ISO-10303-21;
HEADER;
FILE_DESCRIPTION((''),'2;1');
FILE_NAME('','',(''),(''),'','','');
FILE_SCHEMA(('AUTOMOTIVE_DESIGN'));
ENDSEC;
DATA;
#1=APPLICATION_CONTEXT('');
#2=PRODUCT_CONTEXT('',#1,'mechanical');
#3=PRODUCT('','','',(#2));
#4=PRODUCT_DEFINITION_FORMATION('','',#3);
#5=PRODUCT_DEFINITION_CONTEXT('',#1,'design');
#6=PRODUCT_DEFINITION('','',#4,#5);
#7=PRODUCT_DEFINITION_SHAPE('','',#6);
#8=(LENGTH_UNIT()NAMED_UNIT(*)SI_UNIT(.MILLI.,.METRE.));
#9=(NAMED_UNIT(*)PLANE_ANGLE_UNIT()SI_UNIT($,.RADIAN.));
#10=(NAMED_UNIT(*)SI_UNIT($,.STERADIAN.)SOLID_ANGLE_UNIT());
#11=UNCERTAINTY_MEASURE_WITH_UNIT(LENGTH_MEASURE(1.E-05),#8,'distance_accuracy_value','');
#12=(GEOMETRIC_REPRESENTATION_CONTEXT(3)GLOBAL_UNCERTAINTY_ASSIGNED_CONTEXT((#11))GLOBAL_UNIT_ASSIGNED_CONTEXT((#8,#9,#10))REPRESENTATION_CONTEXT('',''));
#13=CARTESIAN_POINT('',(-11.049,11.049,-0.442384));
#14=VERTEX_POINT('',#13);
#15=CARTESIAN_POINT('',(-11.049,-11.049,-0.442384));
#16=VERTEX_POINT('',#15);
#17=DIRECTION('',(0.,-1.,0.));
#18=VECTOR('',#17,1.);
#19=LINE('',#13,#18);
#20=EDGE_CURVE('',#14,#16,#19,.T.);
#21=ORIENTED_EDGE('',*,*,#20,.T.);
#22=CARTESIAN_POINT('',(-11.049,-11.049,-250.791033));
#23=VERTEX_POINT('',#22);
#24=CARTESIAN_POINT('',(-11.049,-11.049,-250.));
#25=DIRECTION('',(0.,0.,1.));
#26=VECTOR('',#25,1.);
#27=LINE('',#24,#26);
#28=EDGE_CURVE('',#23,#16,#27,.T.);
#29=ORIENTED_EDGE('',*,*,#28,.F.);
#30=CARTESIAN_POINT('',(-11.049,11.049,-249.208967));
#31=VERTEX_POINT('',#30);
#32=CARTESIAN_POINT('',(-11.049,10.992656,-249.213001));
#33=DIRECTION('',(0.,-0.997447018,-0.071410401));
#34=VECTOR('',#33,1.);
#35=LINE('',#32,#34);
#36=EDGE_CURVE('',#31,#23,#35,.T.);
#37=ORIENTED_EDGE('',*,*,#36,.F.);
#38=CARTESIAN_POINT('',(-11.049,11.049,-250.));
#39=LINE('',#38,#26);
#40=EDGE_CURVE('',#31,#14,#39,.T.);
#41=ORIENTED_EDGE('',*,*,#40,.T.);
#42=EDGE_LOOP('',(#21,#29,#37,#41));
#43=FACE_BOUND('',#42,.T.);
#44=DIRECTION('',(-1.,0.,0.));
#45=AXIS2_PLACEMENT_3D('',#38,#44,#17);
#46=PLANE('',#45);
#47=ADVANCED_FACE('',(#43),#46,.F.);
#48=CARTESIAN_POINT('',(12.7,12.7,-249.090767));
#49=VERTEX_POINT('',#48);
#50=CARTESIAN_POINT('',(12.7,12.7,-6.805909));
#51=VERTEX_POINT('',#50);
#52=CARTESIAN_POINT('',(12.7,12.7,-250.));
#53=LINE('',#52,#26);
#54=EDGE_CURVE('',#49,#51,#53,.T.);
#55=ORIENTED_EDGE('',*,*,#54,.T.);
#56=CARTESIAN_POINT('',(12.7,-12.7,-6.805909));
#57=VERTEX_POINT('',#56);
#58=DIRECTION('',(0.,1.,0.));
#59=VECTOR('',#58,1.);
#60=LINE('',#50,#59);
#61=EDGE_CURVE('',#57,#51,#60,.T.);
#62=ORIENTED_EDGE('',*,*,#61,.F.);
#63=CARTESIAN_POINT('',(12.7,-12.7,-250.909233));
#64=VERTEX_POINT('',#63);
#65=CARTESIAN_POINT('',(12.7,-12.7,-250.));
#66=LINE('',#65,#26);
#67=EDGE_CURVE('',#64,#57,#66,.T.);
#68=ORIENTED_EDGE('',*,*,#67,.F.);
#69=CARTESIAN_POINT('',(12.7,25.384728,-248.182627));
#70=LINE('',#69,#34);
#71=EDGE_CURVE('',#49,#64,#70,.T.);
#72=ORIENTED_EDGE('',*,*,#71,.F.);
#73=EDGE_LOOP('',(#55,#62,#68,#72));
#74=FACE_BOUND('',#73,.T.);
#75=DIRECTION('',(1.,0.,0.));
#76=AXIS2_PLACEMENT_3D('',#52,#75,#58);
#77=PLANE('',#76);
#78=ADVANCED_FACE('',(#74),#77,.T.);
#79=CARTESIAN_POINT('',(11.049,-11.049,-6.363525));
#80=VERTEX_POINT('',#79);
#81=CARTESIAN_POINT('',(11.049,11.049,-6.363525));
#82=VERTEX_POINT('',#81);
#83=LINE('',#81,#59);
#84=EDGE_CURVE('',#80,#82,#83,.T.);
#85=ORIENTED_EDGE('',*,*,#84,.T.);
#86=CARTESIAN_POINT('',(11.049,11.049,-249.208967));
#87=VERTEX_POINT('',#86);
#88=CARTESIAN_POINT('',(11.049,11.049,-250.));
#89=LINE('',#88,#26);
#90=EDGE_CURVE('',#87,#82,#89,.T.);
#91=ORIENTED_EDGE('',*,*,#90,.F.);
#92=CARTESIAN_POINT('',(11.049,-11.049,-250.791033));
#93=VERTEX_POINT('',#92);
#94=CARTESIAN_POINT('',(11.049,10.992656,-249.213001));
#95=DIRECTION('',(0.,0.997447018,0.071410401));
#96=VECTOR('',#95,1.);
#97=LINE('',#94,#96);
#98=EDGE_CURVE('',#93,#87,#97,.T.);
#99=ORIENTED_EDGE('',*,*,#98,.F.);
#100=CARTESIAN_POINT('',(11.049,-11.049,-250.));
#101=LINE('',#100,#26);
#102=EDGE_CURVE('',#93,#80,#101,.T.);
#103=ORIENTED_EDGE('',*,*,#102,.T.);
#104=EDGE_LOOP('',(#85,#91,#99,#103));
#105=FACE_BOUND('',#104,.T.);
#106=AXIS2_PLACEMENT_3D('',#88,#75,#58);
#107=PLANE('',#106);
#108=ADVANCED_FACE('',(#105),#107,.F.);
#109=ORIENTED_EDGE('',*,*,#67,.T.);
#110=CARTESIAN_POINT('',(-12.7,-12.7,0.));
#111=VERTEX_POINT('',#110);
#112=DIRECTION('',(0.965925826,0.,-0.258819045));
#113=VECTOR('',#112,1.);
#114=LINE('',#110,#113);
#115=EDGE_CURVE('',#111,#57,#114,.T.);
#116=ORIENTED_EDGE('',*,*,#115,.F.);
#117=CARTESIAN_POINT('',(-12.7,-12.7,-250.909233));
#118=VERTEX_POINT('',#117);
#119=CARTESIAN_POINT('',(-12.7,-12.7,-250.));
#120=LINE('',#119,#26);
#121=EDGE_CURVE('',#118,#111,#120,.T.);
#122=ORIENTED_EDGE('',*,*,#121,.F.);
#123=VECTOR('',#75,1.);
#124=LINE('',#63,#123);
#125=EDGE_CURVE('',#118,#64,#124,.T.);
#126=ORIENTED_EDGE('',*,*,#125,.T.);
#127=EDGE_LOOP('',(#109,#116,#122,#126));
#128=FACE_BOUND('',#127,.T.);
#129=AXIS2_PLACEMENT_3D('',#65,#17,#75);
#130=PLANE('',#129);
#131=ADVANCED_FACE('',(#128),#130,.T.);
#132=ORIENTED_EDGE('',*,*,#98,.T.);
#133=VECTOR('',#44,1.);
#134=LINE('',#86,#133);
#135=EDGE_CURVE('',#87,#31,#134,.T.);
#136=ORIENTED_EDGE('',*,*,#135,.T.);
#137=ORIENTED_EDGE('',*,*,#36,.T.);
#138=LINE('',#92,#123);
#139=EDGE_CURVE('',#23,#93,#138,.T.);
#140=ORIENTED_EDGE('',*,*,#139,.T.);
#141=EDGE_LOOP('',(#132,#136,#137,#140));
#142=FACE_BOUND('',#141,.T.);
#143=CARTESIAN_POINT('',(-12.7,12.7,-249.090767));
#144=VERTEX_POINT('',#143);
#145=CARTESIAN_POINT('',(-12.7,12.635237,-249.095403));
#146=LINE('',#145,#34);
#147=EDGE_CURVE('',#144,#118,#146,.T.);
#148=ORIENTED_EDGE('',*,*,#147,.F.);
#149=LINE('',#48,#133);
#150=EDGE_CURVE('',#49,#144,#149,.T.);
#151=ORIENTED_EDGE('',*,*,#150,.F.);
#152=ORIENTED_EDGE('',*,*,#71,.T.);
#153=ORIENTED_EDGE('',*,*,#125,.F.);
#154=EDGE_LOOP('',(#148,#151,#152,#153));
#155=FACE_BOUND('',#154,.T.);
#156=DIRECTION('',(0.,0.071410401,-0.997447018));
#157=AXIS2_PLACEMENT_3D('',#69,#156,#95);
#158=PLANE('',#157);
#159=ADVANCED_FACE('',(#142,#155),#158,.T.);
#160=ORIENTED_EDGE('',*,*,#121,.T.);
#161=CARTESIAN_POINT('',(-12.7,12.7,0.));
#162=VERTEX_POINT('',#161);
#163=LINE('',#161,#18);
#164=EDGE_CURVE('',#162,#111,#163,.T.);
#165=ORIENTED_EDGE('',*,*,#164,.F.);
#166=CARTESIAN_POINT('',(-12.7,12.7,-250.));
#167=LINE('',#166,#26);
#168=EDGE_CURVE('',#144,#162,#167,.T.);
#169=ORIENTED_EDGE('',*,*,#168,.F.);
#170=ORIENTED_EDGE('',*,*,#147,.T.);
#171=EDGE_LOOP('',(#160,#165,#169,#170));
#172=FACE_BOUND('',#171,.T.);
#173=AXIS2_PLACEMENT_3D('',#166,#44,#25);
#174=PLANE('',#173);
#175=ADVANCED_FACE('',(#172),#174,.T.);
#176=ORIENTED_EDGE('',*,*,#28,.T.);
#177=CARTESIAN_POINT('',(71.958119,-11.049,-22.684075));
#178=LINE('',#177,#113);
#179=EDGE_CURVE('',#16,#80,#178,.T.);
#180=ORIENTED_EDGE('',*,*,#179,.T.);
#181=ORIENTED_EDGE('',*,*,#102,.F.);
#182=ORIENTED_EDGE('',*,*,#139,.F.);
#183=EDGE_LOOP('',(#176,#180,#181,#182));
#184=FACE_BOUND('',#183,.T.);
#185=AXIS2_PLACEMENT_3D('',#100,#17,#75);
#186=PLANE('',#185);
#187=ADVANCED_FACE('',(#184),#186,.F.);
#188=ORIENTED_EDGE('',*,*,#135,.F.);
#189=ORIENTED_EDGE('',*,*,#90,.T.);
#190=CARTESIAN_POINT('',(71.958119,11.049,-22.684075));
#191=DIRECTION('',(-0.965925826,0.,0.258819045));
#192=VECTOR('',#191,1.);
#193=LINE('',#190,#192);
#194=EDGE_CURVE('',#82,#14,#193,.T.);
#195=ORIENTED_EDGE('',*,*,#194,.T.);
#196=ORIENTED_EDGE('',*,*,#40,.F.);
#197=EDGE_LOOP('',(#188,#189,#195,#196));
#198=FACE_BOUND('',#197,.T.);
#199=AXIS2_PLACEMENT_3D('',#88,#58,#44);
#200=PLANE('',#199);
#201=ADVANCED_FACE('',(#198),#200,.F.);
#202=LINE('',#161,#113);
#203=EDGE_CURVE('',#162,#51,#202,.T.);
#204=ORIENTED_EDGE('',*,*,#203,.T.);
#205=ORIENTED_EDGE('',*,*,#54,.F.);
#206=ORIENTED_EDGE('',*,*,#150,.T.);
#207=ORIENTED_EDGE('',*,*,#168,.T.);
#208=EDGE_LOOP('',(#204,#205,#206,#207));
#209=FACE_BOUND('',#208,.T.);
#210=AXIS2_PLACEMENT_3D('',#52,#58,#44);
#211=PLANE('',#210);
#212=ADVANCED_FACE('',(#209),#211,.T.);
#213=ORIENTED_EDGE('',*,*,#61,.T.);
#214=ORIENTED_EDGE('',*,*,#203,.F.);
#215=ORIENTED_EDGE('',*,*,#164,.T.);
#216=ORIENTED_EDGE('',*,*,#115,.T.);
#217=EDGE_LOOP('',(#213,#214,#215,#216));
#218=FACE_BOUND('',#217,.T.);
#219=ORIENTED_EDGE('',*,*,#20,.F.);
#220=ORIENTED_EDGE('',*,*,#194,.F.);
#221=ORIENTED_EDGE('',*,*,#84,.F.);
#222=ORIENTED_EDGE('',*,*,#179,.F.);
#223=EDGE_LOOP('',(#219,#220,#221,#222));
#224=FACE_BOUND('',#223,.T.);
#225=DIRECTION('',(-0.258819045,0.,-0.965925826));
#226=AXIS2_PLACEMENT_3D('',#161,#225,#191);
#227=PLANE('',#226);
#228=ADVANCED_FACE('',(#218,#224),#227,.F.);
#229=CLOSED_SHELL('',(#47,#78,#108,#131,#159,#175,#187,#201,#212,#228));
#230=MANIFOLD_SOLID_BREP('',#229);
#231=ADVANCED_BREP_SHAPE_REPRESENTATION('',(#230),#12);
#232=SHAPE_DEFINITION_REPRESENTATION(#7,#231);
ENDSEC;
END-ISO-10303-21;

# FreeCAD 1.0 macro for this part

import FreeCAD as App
import Part
import Sketcher
Q = App.Units.Quantity

doc = App.newDocument("Part")
params = doc.addObject("Spreadsheet::Sheet", "Params")
for row, (alias, value) in enumerate([
    ("sketch1_width", "25.4 mm"),
    ("pad1_length", "250 mm"),
    ("sketch2_width", "25.4 mm"),
    ("pad2_length", "25.4 mm"),
], start=1):
    params.set(f"A{row}", alias)
    params.set(f"B{row}", "=" + value)
    params.setAlias(f"B{row}", alias)

body = doc.addObject("PartDesign::Body", "Body")

# Sketch on XY plane
sketch1 = doc.addObject("Sketcher::SketchObject", "Sketch")
body.addObject(sketch1)
sketch1.AttachmentSupport = (doc.XY_Plane, [""])
sketch1.MapMode = "FlatFace"
sketch1.addGeometry([
    Part.LineSegment(App.Vector(-13, 13, 0), App.Vector(-13, -13, 0)),  # 0
    Part.LineSegment(App.Vector(-13, -13, 0), App.Vector(13, -13, 0)),  # 1
    Part.LineSegment(App.Vector(13, -13, 0), App.Vector(13, 13, 0)),  # 2
    Part.LineSegment(App.Vector(13, 13, 0), App.Vector(-13, 13, 0)),  # 3
    Part.LineSegment(App.Vector(11, -11, 0), App.Vector(-11, -11, 0)),  # 4
    Part.LineSegment(App.Vector(-11, -11, 0), App.Vector(-11, 11, 0)),  # 5
    Part.LineSegment(App.Vector(-11, 11, 0), App.Vector(11, 11, 0)),  # 6
    Part.LineSegment(App.Vector(11, 11, 0), App.Vector(11, -11, 0)),  # 7
], False)
sketch1.addConstraint([
    Sketcher.Constraint("Coincident", 0, 2, 1, 1),
    Sketcher.Constraint("Coincident", 1, 2, 2, 1),
    Sketcher.Constraint("Coincident", 2, 2, 3, 1),
    Sketcher.Constraint("Coincident", 3, 2, 0, 1),
    Sketcher.Constraint("Coincident", 4, 2, 5, 1),
    Sketcher.Constraint("Coincident", 5, 2, 6, 1),
    Sketcher.Constraint("Coincident", 6, 2, 7, 1),
    Sketcher.Constraint("Coincident", 7, 2, 4, 1),
    Sketcher.Constraint("Vertical", 0),
    Sketcher.Constraint("Horizontal", 1),
    Sketcher.Constraint("Vertical", 2),
    Sketcher.Constraint("Horizontal", 3),
    Sketcher.Constraint("Horizontal", 4),
    Sketcher.Constraint("Vertical", 5),
    Sketcher.Constraint("Horizontal", 6),
    Sketcher.Constraint("Vertical", 7),
    Sketcher.Constraint("Symmetric", 0, 2, 2, 2, -1, 1),
    Sketcher.Constraint("Symmetric", 4, 2, 6, 2, -1, 1),
    Sketcher.Constraint("Equal", 3, 0),
    Sketcher.Constraint("Equal", 6, 5),
    Sketcher.Constraint("DistanceX", 1, 1, 1, 2, 25.4),
    Sketcher.Constraint("DistanceX", 4, 2, 4, 1, 22.098),
])
sketch1.setExpression("Constraints[20]", "Params.sketch1_width")
pad1 = doc.addObject("PartDesign::Pad", "Pad")
body.addObject(pad1)
pad1.Profile = sketch1
pad1.setExpression("Length", "Params.pad1_length")
pad1.Reversed = True

# Sketch on XY plane
sketch2 = doc.addObject("Sketcher::SketchObject", "Sketch001")
body.addObject(sketch2)
sketch2.AttachmentSupport = (doc.XY_Plane, [""])
sketch2.MapMode = "FlatFace"
sketch2.AttachmentOffset = App.Placement(App.Vector(0, 0, -250), App.Rotation())
sketch2.addGeometry([
    Part.LineSegment(App.Vector(13, 13, 0), App.Vector(13, -13, 0)),  # 0
    Part.LineSegment(App.Vector(13, -13, 0), App.Vector(-13, -13, 0)),  # 1
    Part.LineSegment(App.Vector(-13, -13, 0), App.Vector(-13, 13, 0)),  # 2
    Part.LineSegment(App.Vector(-13, 13, 0), App.Vector(13, 13, 0)),  # 3
    Part.LineSegment(App.Vector(-11, -11, 0), App.Vector(11, -11, 0)),  # 4
    Part.LineSegment(App.Vector(11, -11, 0), App.Vector(11, 11, 0)),  # 5
    Part.LineSegment(App.Vector(11, 11, 0), App.Vector(-11, 11, 0)),  # 6
    Part.LineSegment(App.Vector(-11, 11, 0), App.Vector(-11, -11, 0)),  # 7
], False)
sketch2.addConstraint([
    Sketcher.Constraint("Coincident", 0, 2, 1, 1),
    Sketcher.Constraint("Coincident", 1, 2, 2, 1),
    Sketcher.Constraint("Coincident", 2, 2, 3, 1),
    Sketcher.Constraint("Coincident", 3, 2, 0, 1),
    Sketcher.Constraint("Coincident", 4, 2, 5, 1),
    Sketcher.Constraint("Coincident", 5, 2, 6, 1),
    Sketcher.Constraint("Coincident", 6, 2, 7, 1),
    Sketcher.Constraint("Coincident", 7, 2, 4, 1),
    Sketcher.Constraint("Vertical", 0),
    Sketcher.Constraint("Horizontal", 1),
    Sketcher.Constraint("Vertical", 2),
    Sketcher.Constraint("Horizontal", 3),
    Sketcher.Constraint("Horizontal", 4),
    Sketcher.Constraint("Vertical", 5),
    Sketcher.Constraint("Horizontal", 6),
    Sketcher.Constraint("Vertical", 7),
    Sketcher.Constraint("Symmetric", 0, 2, 2, 2, -1, 1),
    Sketcher.Constraint("Symmetric", 4, 2, 6, 2, -1, 1),
    Sketcher.Constraint("Equal", 3, 0),
    Sketcher.Constraint("Equal", 6, 5),
    Sketcher.Constraint("DistanceX", 1, 2, 1, 1, 25.4),
    Sketcher.Constraint("DistanceX", 4, 1, 4, 2, 22.098),
])
sketch2.setExpression("Constraints[20]", "Params.sketch2_width")
pad2 = doc.addObject("PartDesign::Pad", "Pad001")
body.addObject(pad2)
pad2.Profile = sketch2
pad2.setExpression("Length", "Params.pad2_length")
pad2.Reversed = True

# Sketch on YZ plane
sketch3 = doc.addObject("Sketcher::SketchObject", "Sketch002")
body.addObject(sketch3)
sketch3.AttachmentSupport = (doc.YZ_Plane, [""])
sketch3.MapMode = "FlatFace"
sketch3.AttachmentOffset = App.Placement(App.Vector(0, 0, -151.321579), App.Rotation())
sketch3.addGeometry([
    Part.LineSegment(App.Vector(25, -248, 0), App.Vector(-25, -252, 0)),
    Part.LineSegment(App.Vector(-25, -252, 0), App.Vector(4, -337, 0)),
    Part.LineSegment(App.Vector(4, -337, 0), App.Vector(25, -248, 0)),
], False)
sketch3.addConstraint([
    Sketcher.Constraint("Coincident", 0, 2, 1, 1),
    Sketcher.Constraint("Coincident", 1, 2, 2, 1),
    Sketcher.Constraint("Coincident", 2, 2, 0, 1),
    Sketcher.Constraint("Distance", 0, 50.899402),
    Sketcher.Constraint("DistanceY", 1, 2, -1, 1, 336.926499),
    Sketcher.Constraint("Distance", 2, 91.279212),
    Sketcher.Constraint("DistanceX", 0, 2, -1, 1, 25.384728),
    Sketcher.Constraint("DistanceX", -1, 1, 1, 2, 4.020749),
    Sketcher.Constraint("DistanceX", -1, 1, 2, 2, 25.384728),
])
pocket1 = doc.addObject("PartDesign::Pocket", "Pocket")
body.addObject(pocket1)
pocket1.Profile = sketch3
pocket1.Type = "ThroughAll"
pocket1.Reversed = True

# Sketch on XZ plane
sketch4 = doc.addObject("Sketcher::SketchObject", "Sketch003")
body.addObject(sketch4)
sketch4.AttachmentSupport = (doc.XZ_Plane, [""])
sketch4.MapMode = "FlatFace"
sketch4.AttachmentOffset = App.Placement(App.Vector(0, 0, 12.7), App.Rotation())
sketch4.addGeometry([
    Part.LineSegment(App.Vector(-13, 0, 0), App.Vector(25, -10, 0)),
    Part.LineSegment(App.Vector(25, -10, 0), App.Vector(25, 0, 0)),
    Part.LineSegment(App.Vector(25, 0, 0), App.Vector(-13, 0, 0)),
], False)
sketch4.addConstraint([
    Sketcher.Constraint("Coincident", 0, 2, 1, 1),
    Sketcher.Constraint("Coincident", 1, 2, 2, 1),
    Sketcher.Constraint("Coincident", 2, 2, 0, 1),
    Sketcher.Constraint("Vertical", 1),
    Sketcher.Constraint("Horizontal", 2),
    Sketcher.Constraint("PointOnObject", 1, 2, -1),
    Sketcher.Constraint("Angle", 0, Q("-15 deg")),
    Sketcher.Constraint("DistanceX", 2, 2, -1, 1, 12.7),
    Sketcher.Constraint("DistanceY", 1, 1, 1, 2, 10.006618),
])
pocket2 = doc.addObject("PartDesign::Pocket", "Pocket001")
body.addObject(pocket2)
pocket2.Profile = sketch4
pocket2.Type = "ThroughAll"

doc.recompute()
